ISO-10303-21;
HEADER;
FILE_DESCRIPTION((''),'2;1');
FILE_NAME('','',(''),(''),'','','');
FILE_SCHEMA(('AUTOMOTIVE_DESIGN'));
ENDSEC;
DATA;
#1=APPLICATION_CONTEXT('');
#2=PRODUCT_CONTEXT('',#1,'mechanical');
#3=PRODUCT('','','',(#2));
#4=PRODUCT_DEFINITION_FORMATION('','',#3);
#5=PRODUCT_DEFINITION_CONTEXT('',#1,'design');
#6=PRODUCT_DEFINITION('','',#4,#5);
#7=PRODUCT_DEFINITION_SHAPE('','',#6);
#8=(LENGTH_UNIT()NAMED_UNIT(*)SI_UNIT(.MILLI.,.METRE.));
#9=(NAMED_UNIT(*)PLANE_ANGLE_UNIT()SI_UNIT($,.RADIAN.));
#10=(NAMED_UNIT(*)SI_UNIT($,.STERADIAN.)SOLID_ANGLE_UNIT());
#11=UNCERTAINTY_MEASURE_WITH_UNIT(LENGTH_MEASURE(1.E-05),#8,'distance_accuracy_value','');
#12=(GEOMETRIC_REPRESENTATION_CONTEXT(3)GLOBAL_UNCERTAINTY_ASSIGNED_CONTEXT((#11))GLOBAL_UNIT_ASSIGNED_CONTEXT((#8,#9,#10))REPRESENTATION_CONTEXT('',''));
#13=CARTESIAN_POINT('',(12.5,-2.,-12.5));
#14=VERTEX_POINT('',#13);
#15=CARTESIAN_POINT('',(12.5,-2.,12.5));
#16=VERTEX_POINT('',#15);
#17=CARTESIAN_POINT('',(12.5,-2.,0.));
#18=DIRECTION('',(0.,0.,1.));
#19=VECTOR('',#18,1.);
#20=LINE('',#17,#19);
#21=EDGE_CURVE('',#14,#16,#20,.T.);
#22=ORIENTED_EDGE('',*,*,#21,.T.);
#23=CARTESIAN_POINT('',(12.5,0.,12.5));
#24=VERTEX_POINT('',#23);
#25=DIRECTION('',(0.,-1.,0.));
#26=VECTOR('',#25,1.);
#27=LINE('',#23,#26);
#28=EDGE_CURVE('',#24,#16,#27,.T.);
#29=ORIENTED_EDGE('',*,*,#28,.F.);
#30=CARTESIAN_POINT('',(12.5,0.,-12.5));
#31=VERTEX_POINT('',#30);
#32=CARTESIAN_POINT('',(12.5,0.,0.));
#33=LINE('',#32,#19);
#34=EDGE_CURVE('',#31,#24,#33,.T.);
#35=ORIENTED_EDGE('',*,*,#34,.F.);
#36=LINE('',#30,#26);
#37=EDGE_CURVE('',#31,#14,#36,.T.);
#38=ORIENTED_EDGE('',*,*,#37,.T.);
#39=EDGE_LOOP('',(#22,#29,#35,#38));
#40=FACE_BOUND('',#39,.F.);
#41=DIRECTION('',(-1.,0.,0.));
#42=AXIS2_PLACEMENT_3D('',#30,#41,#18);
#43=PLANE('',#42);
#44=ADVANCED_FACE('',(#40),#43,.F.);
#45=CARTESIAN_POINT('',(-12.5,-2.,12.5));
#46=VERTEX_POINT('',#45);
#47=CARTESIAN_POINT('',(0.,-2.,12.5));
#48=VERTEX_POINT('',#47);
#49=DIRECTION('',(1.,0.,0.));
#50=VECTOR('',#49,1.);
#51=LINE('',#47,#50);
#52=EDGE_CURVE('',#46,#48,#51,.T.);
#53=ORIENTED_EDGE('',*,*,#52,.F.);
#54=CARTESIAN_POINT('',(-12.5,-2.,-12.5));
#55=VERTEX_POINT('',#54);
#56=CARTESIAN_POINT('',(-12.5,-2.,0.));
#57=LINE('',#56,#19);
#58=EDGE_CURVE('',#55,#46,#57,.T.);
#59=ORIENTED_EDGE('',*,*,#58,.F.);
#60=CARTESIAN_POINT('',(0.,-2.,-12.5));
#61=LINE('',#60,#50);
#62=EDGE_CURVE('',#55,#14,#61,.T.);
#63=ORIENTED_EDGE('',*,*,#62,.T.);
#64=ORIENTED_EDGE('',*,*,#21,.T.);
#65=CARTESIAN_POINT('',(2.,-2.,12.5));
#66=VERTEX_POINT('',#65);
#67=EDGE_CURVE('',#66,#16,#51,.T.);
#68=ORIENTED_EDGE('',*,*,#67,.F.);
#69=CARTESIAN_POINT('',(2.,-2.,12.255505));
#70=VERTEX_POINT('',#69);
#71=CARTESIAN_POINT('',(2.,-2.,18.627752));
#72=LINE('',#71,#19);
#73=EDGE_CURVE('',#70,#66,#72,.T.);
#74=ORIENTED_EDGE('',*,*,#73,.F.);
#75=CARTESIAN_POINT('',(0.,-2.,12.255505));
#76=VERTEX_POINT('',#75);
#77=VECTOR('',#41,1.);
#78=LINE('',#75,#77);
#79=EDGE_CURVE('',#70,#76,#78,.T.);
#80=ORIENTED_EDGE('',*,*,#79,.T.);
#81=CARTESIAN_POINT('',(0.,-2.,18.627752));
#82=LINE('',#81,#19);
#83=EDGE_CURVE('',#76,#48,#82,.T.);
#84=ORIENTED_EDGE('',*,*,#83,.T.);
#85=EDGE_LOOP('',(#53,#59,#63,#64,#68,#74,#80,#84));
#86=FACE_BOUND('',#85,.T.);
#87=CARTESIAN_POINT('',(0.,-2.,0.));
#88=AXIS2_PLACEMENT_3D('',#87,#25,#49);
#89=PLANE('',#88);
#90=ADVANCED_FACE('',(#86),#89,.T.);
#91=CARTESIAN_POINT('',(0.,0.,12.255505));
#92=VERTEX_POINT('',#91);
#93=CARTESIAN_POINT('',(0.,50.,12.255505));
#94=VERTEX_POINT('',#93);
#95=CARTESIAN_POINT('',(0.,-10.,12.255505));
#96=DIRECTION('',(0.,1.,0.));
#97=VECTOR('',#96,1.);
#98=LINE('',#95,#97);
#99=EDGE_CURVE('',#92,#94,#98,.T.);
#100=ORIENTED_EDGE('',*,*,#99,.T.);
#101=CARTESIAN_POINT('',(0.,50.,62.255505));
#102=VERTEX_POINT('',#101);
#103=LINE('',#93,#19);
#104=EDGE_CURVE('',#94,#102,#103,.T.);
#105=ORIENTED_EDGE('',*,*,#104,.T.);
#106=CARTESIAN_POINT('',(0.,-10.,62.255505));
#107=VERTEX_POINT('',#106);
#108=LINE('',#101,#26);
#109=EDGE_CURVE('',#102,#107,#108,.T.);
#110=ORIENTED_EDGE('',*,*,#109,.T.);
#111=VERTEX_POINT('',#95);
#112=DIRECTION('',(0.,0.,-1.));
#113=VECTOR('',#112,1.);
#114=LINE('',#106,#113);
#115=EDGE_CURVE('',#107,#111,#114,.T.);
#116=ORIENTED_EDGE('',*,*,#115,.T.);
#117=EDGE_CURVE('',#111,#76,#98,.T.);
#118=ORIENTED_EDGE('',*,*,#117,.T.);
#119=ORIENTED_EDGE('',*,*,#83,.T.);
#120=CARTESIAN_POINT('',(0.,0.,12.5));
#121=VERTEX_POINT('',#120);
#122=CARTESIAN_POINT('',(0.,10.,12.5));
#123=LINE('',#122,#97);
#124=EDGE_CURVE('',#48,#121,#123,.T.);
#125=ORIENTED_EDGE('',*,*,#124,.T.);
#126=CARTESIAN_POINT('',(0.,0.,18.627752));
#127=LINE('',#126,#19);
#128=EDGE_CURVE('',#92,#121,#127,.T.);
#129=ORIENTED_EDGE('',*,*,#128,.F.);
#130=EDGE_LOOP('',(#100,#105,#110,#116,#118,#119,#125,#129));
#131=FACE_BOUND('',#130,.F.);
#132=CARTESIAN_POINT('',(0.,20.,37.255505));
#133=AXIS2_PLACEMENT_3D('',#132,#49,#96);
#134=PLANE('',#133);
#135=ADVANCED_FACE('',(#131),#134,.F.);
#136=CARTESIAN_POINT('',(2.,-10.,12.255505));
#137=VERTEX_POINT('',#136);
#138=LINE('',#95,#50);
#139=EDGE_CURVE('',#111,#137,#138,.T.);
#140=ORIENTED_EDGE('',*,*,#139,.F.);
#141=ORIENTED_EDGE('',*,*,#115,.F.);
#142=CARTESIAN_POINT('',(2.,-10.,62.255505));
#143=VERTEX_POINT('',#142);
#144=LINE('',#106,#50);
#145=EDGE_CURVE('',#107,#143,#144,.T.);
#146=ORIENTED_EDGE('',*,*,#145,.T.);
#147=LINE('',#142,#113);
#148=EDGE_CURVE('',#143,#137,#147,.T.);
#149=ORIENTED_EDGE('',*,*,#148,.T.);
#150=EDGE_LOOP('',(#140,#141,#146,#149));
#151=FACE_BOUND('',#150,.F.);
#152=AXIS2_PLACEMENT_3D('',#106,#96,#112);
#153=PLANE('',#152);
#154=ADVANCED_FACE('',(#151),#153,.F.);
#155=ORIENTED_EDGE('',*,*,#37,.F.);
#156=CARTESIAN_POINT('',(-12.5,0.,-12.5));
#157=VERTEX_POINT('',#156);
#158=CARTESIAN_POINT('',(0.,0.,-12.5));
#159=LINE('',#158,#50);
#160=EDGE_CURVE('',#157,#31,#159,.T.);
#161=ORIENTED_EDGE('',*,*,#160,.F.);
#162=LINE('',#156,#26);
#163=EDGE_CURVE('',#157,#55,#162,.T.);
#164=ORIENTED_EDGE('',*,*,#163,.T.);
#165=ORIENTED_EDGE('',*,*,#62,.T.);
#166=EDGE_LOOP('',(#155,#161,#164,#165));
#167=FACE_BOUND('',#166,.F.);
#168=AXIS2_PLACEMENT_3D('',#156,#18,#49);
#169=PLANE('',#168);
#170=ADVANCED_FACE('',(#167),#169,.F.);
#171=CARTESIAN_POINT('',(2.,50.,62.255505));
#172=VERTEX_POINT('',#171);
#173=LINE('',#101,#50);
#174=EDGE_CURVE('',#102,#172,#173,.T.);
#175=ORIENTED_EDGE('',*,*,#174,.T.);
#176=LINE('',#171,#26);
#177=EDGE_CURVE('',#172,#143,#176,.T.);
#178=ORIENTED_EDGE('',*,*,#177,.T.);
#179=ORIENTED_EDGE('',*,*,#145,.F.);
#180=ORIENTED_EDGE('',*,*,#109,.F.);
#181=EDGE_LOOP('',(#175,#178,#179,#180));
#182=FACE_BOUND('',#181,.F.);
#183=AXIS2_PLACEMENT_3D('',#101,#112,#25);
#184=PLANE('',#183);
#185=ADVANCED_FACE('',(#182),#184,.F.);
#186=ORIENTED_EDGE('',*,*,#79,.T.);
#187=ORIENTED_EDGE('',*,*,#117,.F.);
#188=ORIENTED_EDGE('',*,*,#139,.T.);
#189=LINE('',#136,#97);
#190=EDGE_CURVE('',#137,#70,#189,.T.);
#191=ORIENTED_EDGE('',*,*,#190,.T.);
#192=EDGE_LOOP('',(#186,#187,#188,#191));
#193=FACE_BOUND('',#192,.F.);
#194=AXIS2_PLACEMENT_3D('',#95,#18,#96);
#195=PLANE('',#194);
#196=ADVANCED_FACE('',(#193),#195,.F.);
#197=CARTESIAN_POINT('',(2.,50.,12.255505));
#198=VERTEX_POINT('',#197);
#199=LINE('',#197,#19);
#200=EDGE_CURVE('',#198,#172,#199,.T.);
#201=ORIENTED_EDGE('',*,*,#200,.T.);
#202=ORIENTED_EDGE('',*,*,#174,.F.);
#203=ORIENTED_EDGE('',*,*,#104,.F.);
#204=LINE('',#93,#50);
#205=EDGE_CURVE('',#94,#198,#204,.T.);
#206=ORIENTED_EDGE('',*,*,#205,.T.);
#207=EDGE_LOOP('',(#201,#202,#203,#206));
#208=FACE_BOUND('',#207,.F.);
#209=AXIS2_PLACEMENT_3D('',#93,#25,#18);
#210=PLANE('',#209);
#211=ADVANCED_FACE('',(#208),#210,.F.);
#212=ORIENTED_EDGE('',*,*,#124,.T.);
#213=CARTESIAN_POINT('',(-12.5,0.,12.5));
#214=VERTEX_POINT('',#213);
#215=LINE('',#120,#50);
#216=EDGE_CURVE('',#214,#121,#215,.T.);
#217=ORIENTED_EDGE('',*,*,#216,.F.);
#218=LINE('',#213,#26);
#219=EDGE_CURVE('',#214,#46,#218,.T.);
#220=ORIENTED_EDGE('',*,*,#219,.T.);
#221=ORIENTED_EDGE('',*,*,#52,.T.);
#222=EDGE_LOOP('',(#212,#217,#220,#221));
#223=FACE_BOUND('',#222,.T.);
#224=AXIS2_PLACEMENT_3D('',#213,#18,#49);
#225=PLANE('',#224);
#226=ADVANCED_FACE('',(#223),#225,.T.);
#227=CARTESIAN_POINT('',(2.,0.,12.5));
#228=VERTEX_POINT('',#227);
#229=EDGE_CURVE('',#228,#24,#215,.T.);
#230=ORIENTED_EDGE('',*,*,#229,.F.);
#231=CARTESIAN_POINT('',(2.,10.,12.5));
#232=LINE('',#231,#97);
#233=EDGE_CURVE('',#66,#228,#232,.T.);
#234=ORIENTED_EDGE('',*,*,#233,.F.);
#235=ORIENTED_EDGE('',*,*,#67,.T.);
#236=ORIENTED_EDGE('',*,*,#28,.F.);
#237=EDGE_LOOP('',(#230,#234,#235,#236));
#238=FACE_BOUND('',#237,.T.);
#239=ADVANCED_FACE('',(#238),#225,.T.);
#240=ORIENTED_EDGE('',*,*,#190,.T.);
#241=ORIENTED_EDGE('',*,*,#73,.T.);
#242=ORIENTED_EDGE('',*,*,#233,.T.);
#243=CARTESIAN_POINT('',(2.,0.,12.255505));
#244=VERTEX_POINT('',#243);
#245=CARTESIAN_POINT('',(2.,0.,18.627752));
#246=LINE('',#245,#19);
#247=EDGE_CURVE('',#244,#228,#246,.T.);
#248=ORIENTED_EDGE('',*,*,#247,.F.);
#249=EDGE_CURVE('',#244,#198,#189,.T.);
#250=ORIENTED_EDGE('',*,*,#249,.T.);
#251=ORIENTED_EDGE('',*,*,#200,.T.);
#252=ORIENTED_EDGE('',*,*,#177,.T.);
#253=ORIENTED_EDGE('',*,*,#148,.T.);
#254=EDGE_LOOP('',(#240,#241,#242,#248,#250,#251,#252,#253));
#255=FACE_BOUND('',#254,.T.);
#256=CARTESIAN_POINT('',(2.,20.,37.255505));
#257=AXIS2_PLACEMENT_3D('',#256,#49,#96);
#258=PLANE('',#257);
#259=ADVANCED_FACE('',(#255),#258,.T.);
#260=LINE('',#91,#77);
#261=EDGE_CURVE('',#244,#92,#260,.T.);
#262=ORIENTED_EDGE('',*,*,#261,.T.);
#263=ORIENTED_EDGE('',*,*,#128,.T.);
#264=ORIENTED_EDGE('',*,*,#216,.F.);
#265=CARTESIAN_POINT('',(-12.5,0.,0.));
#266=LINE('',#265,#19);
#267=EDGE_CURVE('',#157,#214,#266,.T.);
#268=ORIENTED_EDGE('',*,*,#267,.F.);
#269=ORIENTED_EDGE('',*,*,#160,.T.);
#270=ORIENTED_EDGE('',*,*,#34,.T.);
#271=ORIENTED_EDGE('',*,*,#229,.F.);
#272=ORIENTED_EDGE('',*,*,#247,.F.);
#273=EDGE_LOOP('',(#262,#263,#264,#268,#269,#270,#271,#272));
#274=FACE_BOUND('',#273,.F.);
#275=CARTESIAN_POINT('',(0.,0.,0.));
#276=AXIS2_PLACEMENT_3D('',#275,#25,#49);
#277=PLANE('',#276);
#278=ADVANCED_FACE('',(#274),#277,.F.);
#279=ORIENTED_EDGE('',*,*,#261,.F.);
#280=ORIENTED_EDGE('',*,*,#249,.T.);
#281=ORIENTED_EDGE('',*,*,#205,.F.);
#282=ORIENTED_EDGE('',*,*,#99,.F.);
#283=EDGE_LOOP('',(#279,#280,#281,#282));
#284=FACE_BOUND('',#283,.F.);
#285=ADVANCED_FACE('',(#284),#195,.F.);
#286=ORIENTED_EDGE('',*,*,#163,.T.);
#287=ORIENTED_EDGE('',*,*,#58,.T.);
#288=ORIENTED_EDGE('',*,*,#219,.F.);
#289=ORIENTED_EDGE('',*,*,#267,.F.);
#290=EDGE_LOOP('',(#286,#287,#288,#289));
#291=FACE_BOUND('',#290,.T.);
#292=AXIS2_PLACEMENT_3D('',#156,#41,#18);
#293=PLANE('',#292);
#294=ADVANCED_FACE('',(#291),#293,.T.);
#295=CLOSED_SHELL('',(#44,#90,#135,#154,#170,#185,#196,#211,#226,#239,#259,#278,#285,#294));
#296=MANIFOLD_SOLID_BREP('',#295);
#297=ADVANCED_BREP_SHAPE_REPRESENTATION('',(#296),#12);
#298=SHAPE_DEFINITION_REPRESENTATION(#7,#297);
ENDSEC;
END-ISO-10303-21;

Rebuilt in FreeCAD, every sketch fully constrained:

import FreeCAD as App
import Part
import Sketcher

V = App.Vector
Q = App.Units.Quantity


def add_polygon(sketch, points):
    """Adds a closed chain of lines whose ends are joined by coincident constraints."""
    first, n = sketch.GeometryCount, len(points)
    for a, b in zip(points, points[1:] + points[:1]):
        sketch.addGeometry(Part.LineSegment(App.Vector(*a, 0), App.Vector(*b, 0)), False)
    for i in range(n):
        sketch.addConstraint(Sketcher.Constraint("Coincident", first + i, 2, first + (i + 1) % n, 1))

doc = App.newDocument("Part")
params = doc.addObject("Spreadsheet::Sheet", "Params")
for row, (alias, value) in enumerate([
    ("sketch1_width", "25 mm"),
    ("pad1_length", "2 mm"),
    ("sketch2_width", "60 mm"),
    ("sketch2_height", "50 mm"),
    ("pad2_length", "2 mm"),
], start=1):
    params.set(f"A{row}", alias)
    params.set(f"B{row}", "=" + value)
    params.setAlias(f"B{row}", alias)

body = doc.addObject("PartDesign::Body", "Body")

sketch1 = body.newObject("Sketcher::SketchObject", "Sketch")
sketch1.AttachmentSupport = (doc.getObject("XZ_Plane"), [""])
sketch1.MapMode = "FlatFace"
add_polygon(sketch1, [(-12, 12), (-12, -12), (12, -12), (12, 12)])
sketch1.addConstraint(Sketcher.Constraint("Vertical", 0))
sketch1.addConstraint(Sketcher.Constraint("Horizontal", 1))
sketch1.addConstraint(Sketcher.Constraint("Vertical", 2))
sketch1.addConstraint(Sketcher.Constraint("Horizontal", 3))
sketch1.addConstraint(Sketcher.Constraint("Symmetric", 0, 2, 2, 2, -1, 1))
sketch1.addConstraint(Sketcher.Constraint("Equal", 3, 0))
sketch1.addConstraint(Sketcher.Constraint("DistanceX", 1, 1, 1, 2, Q("25 mm")))
sketch1.setExpression("Constraints[10]", "Params.sketch1_width")
pad1 = body.newObject("PartDesign::Pad", "Pad")
pad1.Profile = sketch1
pad1.setExpression("Length", "Params.pad1_length")

sketch2 = body.newObject("Sketcher::SketchObject", "Sketch001")
sketch2.AttachmentSupport = (doc.getObject("YZ_Plane"), [""])
sketch2.MapMode = "FlatFace"
add_polygon(sketch2, [(-10, 12), (50, 12), (50, 62), (-10, 62)])
sketch2.addConstraint(Sketcher.Constraint("Horizontal", 0))
sketch2.addConstraint(Sketcher.Constraint("Vertical", 1))
sketch2.addConstraint(Sketcher.Constraint("Horizontal", 2))
sketch2.addConstraint(Sketcher.Constraint("Vertical", 3))
sketch2.addConstraint(Sketcher.Constraint("DistanceX", 0, 1, 0, 2, Q("60 mm")))
sketch2.addConstraint(Sketcher.Constraint("DistanceY", 1, 1, 1, 2, Q("50 mm")))
sketch2.addConstraint(Sketcher.Constraint("DistanceX", -1, 1, 0, 2, Q("50 mm")))
sketch2.addConstraint(Sketcher.Constraint("DistanceY", -1, 1, 0, 2, Q("12.255505 mm")))
sketch2.setExpression("Constraints[8]", "Params.sketch2_width")
sketch2.setExpression("Constraints[9]", "Params.sketch2_height")
pad2 = body.newObject("PartDesign::Pad", "Pad001")
pad2.Profile = sketch2
pad2.setExpression("Length", "Params.pad2_length")

doc.recompute()
